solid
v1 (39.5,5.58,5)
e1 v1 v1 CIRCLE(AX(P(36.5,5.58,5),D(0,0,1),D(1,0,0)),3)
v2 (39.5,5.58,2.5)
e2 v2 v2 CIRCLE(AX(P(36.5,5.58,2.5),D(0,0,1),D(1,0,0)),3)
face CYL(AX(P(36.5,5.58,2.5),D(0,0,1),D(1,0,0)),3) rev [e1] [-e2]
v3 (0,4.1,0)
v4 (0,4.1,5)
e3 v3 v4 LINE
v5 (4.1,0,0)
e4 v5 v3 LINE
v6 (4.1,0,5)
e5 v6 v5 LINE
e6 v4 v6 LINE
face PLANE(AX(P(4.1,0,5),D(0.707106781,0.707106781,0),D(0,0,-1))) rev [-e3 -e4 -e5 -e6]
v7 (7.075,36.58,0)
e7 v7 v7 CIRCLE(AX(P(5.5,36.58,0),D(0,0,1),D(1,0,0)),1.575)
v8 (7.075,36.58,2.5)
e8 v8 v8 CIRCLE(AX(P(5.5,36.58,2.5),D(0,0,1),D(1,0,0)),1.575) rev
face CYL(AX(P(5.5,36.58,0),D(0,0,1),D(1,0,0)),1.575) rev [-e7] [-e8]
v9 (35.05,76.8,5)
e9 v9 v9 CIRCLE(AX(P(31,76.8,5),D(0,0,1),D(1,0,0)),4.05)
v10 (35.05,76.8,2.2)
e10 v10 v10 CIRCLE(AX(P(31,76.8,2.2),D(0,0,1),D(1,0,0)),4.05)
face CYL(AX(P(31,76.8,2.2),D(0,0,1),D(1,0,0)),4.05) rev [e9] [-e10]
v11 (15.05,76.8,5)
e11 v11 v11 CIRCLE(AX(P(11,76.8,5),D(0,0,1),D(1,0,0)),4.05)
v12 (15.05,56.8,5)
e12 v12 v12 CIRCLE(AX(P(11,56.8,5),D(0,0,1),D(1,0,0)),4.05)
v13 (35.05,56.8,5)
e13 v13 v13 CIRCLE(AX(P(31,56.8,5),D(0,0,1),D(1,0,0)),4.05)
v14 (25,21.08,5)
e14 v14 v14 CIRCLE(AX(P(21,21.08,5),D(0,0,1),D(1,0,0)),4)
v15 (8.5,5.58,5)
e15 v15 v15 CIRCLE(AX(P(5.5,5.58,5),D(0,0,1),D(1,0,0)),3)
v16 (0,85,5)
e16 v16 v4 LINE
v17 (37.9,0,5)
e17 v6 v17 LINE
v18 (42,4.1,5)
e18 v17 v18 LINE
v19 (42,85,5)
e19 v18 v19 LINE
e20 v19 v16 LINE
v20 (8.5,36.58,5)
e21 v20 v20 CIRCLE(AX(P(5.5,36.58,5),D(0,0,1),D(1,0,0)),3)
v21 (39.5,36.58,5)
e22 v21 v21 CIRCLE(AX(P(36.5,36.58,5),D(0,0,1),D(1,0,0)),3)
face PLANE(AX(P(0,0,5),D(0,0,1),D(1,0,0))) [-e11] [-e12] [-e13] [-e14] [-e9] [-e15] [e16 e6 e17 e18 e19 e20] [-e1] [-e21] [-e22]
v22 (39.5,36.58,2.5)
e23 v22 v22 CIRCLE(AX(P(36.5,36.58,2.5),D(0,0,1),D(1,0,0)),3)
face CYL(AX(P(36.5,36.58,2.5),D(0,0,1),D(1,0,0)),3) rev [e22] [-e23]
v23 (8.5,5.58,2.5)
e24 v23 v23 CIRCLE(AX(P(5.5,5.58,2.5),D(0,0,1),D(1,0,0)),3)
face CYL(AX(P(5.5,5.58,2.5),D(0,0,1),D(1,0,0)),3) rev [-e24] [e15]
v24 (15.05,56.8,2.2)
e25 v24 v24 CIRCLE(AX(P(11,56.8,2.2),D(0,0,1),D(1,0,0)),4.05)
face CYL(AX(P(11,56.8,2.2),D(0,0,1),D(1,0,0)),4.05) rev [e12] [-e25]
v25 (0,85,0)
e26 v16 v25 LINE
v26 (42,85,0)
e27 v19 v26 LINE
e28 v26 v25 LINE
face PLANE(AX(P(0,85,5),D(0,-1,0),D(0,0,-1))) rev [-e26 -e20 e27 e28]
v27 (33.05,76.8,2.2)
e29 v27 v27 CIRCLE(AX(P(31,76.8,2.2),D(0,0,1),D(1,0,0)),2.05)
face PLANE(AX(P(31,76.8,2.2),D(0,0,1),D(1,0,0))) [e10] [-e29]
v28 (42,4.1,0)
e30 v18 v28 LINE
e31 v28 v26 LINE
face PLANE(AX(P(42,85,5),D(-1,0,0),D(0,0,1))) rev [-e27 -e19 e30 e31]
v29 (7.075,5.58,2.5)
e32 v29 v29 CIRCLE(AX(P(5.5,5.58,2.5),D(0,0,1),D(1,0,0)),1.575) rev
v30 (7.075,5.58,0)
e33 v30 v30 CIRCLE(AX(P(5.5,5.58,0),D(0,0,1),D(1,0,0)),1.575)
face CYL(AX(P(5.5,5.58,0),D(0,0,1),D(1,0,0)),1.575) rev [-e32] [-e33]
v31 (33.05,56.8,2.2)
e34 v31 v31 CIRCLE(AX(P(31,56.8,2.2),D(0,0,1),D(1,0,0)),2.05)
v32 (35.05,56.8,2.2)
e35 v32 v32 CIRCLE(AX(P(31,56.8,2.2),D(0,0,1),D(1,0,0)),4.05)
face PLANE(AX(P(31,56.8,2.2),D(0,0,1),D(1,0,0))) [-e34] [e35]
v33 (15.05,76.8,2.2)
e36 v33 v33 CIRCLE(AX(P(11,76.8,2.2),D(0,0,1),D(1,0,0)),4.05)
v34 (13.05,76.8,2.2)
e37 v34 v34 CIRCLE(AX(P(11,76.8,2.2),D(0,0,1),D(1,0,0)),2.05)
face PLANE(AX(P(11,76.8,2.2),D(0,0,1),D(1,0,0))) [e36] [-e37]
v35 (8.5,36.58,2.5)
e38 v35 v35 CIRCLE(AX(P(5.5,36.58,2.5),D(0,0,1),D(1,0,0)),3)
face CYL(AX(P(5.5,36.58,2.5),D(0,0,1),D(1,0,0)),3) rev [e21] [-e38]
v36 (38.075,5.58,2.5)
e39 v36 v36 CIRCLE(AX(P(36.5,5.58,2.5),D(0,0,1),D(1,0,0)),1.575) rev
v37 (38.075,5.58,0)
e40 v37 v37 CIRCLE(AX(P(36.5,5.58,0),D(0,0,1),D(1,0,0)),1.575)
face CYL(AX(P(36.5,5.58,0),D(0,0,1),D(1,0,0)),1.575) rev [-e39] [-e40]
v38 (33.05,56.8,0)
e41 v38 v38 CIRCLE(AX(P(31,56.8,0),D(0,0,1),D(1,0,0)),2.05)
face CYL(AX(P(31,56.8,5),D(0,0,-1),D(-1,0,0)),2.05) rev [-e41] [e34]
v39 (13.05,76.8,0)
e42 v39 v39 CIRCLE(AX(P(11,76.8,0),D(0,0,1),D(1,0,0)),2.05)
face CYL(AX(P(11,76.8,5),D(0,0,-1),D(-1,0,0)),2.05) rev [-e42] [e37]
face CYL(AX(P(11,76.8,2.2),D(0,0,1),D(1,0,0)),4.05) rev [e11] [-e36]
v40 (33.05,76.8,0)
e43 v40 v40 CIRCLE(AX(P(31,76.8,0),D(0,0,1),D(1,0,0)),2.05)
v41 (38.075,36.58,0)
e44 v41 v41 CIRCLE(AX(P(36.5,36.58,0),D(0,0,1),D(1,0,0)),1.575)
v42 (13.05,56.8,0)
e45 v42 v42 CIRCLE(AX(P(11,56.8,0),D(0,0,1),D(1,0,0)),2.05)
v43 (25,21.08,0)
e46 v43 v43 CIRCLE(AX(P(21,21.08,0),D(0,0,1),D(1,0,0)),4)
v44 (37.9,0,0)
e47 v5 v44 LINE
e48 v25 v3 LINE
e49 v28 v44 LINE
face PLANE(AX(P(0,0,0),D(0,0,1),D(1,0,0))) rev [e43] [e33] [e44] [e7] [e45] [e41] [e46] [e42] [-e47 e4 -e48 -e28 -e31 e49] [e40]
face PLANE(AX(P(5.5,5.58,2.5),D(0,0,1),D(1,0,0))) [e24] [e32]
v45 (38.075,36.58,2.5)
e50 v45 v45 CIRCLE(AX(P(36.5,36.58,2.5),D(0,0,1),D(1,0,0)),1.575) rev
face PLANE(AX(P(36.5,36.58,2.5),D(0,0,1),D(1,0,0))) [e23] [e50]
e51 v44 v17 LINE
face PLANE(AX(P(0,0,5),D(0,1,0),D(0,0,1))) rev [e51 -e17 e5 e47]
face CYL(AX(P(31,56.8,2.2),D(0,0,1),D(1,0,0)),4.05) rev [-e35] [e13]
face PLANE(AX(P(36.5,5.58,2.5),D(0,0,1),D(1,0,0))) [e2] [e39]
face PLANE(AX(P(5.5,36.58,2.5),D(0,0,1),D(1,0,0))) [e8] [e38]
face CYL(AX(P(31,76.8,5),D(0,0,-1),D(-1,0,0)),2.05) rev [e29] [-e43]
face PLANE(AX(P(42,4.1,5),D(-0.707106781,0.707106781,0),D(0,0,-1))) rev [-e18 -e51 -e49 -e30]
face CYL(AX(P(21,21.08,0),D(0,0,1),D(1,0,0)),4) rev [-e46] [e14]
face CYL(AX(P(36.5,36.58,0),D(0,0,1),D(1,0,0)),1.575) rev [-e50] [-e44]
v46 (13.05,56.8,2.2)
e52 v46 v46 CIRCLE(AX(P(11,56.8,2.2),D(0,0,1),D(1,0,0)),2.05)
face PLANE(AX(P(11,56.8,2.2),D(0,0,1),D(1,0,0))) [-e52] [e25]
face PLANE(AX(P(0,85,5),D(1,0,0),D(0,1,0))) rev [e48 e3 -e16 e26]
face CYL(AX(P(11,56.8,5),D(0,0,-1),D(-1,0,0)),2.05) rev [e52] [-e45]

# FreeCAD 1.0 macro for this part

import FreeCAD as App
import Part
import Sketcher
Q = App.Units.Quantity


def edges_at(feature, points):
    """Names of the edges that pass closest to the given points."""
    edges = feature.Shape.Edges
    near = lambda p: min(range(len(edges)), key=lambda i: edges[i].distToShape(Part.Vertex(*p))[0])
    return sorted({f"Edge{near(p) + 1}" for p in points})

doc = App.newDocument("Part")
body = doc.addObject("PartDesign::Body", "Body")

# Sketch on XY plane
sketch1 = doc.addObject("Sketcher::SketchObject", "Sketch")
body.addObject(sketch1)
sketch1.AttachmentSupport = (doc.XY_Plane, [""])
sketch1.MapMode = "FlatFace"
sketch1.addGeometry([
    Part.LineSegment(App.Vector(0, 85, 0), App.Vector(0, 0, 0)),  # 0
    Part.LineSegment(App.Vector(0, 0, 0), App.Vector(42, 0, 0)),  # 1
    Part.LineSegment(App.Vector(42, 0, 0), App.Vector(42, 85, 0)),  # 2
    Part.LineSegment(App.Vector(42, 85, 0), App.Vector(0, 85, 0)),  # 3
    Part.Circle(App.Vector(11, 56.8, 0), App.Vector(0, 0, 1), 2.05),  # 4
    Part.Circle(App.Vector(31, 56.8, 0), App.Vector(0, 0, 1), 2.05),  # 5
    Part.Circle(App.Vector(11, 76.8, 0), App.Vector(0, 0, 1), 2.05),  # 6
    Part.Circle(App.Vector(31, 76.8, 0), App.Vector(0, 0, 1), 2.05),  # 7
], False)
sketch1.addConstraint([
    Sketcher.Constraint("Coincident", 0, 2, 1, 1),
    Sketcher.Constraint("Coincident", 1, 2, 2, 1),
    Sketcher.Constraint("Coincident", 2, 2, 3, 1),
    Sketcher.Constraint("Coincident", 3, 2, 0, 1),
    Sketcher.Constraint("Vertical", 0),
    Sketcher.Constraint("Horizontal", 1),
    Sketcher.Constraint("Vertical", 2),
    Sketcher.Constraint("Horizontal", 3),
    Sketcher.Constraint("Coincident", 0, 2, -1, 1),
    Sketcher.Constraint("Equal", 4, 5),
    Sketcher.Constraint("Equal", 5, 6),
    Sketcher.Constraint("Equal", 6, 7),
    Sketcher.Constraint("Horizontal", 4, 3, 5, 3),
    Sketcher.Constraint("Horizontal", 6, 3, 7, 3),
    Sketcher.Constraint("Vertical", 4, 3, 6, 3),
    Sketcher.Constraint("Vertical", 5, 3, 7, 3),
    Sketcher.Constraint("Diameter", 4, Q("4.1 mm")),
    Sketcher.Constraint("DistanceX", 1, 1, 1, 2, Q("42 mm")),
    Sketcher.Constraint("DistanceY", 0, 2, 0, 1, Q("85 mm")),
    Sketcher.Constraint("DistanceX", -1, 1, 4, 3, Q("11 mm")),
    Sketcher.Constraint("DistanceX", -1, 1, 5, 3, Q("31 mm")),
    Sketcher.Constraint("DistanceY", 4, 3, 6, 3, Q("20 mm")),
    Sketcher.Constraint("DistanceY", -1, 1, 4, 3, Q("56.8 mm")),
])
pad1 = doc.addObject("PartDesign::Pad", "Pad")
body.addObject(pad1)
pad1.Profile = sketch1
pad1.Length = 5

# Sketch on XY plane
sketch2 = doc.addObject("Sketcher::SketchObject", "Sketch001")
body.addObject(sketch2)
sketch2.AttachmentSupport = (doc.XY_Plane, [""])
sketch2.MapMode = "FlatFace"
sketch2.AttachmentOffset = App.Placement(App.Vector(0, 0, 5), App.Rotation())
sketch2.addGeometry([
    Part.Circle(App.Vector(11, 76.8, 0), App.Vector(0, 0, 1), 4.05),
    Part.Circle(App.Vector(11, 56.8, 0), App.Vector(0, 0, 1), 4.05),
    Part.Circle(App.Vector(31, 56.8, 0), App.Vector(0, 0, 1), 4.05),
    Part.Circle(App.Vector(31, 76.8, 0), App.Vector(0, 0, 1), 4.05),
], False)
sketch2.addConstraint([
    Sketcher.Constraint("Equal", 0, 1),
    Sketcher.Constraint("Equal", 1, 2),
    Sketcher.Constraint("Equal", 2, 3),
    Sketcher.Constraint("Horizontal", 1, 3, 2, 3),
    Sketcher.Constraint("Horizontal", 0, 3, 3, 3),
    Sketcher.Constraint("Vertical", 0, 3, 1, 3),
    Sketcher.Constraint("Vertical", 2, 3, 3, 3),
    Sketcher.Constraint("Diameter", 0, Q("8.1 mm")),
    Sketcher.Constraint("DistanceX", -1, 1, 0, 3, Q("11 mm")),
    Sketcher.Constraint("DistanceX", -1, 1, 2, 3, Q("31 mm")),
    Sketcher.Constraint("DistanceY", 1, 3, 0, 3, Q("20 mm")),
    Sketcher.Constraint("DistanceY", -1, 1, 0, 3, Q("76.8 mm")),
])
pocket1 = doc.addObject("PartDesign::Pocket", "Pocket")
body.addObject(pocket1)
pocket1.Profile = sketch2
pocket1.Length = 2.8

# Sketch on XY plane
sketch3 = doc.addObject("Sketcher::SketchObject", "Sketch002")
body.addObject(sketch3)
sketch3.AttachmentSupport = (doc.XY_Plane, [""])
sketch3.MapMode = "FlatFace"
sketch3.AttachmentOffset = App.Placement(App.Vector(0, 0, 5), App.Rotation())
sketch3.addGeometry([
    Part.Circle(App.Vector(5.5, 36.58, 0), App.Vector(0, 0, 1), 1.575),  # 0
    Part.Circle(App.Vector(36.5, 36.58, 0), App.Vector(0, 0, 1), 1.575),  # 1
    Part.Circle(App.Vector(36.5, 5.58, 0), App.Vector(0, 0, 1), 1.575),  # 2
    Part.Circle(App.Vector(5.5, 5.58, 0), App.Vector(0, 0, 1), 1.575),  # 3
    Part.Circle(App.Vector(21, 21.08, 0), App.Vector(0, 0, 1), 4),  # 4
], False)
sketch3.addConstraint([
    Sketcher.Constraint("Equal", 0, 1),
    Sketcher.Constraint("Equal", 1, 2),
    Sketcher.Constraint("Equal", 2, 3),
    Sketcher.Constraint("Horizontal", 0, 3, 1, 3),
    Sketcher.Constraint("Horizontal", 2, 3, 3, 3),
    Sketcher.Constraint("Vertical", 1, 3, 2, 3),
    Sketcher.Constraint("Vertical", 0, 3, 3, 3),
    Sketcher.Constraint("Diameter", 4, Q("8 mm")),
    Sketcher.Constraint("Diameter", 0, Q("3.15 mm")),
    Sketcher.Constraint("DistanceX", -1, 1, 4, 3, Q("21 mm")),
    Sketcher.Constraint("DistanceX", 0, 3, 1, 3, Q("31 mm")),
    Sketcher.Constraint("DistanceY", 2, 3, 1, 3, Q("31 mm")),
    Sketcher.Constraint("DistanceX", -1, 1, 0, 3, Q("5.5 mm")),
    Sketcher.Constraint("DistanceY", 4, 3, 0, 3, Q("15.5 mm")),
    Sketcher.Constraint("DistanceY", -1, 1, 0, 3, Q("36.58 mm")),
])
pocket2 = doc.addObject("PartDesign::Pocket", "Pocket001")
body.addObject(pocket2)
pocket2.Profile = sketch3
pocket2.Type = "ThroughAll"

# Sketch on XY plane
sketch4 = doc.addObject("Sketcher::SketchObject", "Sketch003")
body.addObject(sketch4)
sketch4.AttachmentSupport = (doc.XY_Plane, [""])
sketch4.MapMode = "FlatFace"
sketch4.AttachmentOffset = App.Placement(App.Vector(0, 0, 5), App.Rotation())
sketch4.addGeometry([
    Part.Circle(App.Vector(5.5, 36.58, 0), App.Vector(0, 0, 1), 3),
    Part.Circle(App.Vector(36.5, 36.58, 0), App.Vector(0, 0, 1), 3),
    Part.Circle(App.Vector(36.5, 5.58, 0), App.Vector(0, 0, 1), 3),
    Part.Circle(App.Vector(5.5, 5.58, 0), App.Vector(0, 0, 1), 3),
], False)
sketch4.addConstraint([
    Sketcher.Constraint("Equal", 0, 1),
    Sketcher.Constraint("Equal", 1, 2),
    Sketcher.Constraint("Equal", 2, 3),
    Sketcher.Constraint("Horizontal", 0, 3, 1, 3),
    Sketcher.Constraint("Horizontal", 2, 3, 3, 3),
    Sketcher.Constraint("Vertical", 1, 3, 2, 3),
    Sketcher.Constraint("Vertical", 0, 3, 3, 3),
    Sketcher.Constraint("Diameter", 0, Q("6 mm")),
    Sketcher.Constraint("DistanceX", 0, 3, 1, 3, Q("31 mm")),
    Sketcher.Constraint("DistanceY", 2, 3, 1, 3, Q("31 mm")),
    Sketcher.Constraint("DistanceX", -1, 1, 0, 3, Q("5.5 mm")),
    Sketcher.Constraint("DistanceY", -1, 1, 0, 3, Q("36.58 mm")),
])
pocket3 = doc.addObject("PartDesign::Pocket", "Pocket002")
body.addObject(pocket3)
pocket3.Profile = sketch4
pocket3.Length = 2.5
doc.recompute()

chamfer = doc.addObject("PartDesign::Chamfer", "Chamfer")
body.addObject(chamfer)
chamfer.Base = (pocket3, edges_at(pocket3, [(42, 0, 2.5), (0, 0, 2.5)]))
chamfer.Size = 4.1

doc.recompute()
